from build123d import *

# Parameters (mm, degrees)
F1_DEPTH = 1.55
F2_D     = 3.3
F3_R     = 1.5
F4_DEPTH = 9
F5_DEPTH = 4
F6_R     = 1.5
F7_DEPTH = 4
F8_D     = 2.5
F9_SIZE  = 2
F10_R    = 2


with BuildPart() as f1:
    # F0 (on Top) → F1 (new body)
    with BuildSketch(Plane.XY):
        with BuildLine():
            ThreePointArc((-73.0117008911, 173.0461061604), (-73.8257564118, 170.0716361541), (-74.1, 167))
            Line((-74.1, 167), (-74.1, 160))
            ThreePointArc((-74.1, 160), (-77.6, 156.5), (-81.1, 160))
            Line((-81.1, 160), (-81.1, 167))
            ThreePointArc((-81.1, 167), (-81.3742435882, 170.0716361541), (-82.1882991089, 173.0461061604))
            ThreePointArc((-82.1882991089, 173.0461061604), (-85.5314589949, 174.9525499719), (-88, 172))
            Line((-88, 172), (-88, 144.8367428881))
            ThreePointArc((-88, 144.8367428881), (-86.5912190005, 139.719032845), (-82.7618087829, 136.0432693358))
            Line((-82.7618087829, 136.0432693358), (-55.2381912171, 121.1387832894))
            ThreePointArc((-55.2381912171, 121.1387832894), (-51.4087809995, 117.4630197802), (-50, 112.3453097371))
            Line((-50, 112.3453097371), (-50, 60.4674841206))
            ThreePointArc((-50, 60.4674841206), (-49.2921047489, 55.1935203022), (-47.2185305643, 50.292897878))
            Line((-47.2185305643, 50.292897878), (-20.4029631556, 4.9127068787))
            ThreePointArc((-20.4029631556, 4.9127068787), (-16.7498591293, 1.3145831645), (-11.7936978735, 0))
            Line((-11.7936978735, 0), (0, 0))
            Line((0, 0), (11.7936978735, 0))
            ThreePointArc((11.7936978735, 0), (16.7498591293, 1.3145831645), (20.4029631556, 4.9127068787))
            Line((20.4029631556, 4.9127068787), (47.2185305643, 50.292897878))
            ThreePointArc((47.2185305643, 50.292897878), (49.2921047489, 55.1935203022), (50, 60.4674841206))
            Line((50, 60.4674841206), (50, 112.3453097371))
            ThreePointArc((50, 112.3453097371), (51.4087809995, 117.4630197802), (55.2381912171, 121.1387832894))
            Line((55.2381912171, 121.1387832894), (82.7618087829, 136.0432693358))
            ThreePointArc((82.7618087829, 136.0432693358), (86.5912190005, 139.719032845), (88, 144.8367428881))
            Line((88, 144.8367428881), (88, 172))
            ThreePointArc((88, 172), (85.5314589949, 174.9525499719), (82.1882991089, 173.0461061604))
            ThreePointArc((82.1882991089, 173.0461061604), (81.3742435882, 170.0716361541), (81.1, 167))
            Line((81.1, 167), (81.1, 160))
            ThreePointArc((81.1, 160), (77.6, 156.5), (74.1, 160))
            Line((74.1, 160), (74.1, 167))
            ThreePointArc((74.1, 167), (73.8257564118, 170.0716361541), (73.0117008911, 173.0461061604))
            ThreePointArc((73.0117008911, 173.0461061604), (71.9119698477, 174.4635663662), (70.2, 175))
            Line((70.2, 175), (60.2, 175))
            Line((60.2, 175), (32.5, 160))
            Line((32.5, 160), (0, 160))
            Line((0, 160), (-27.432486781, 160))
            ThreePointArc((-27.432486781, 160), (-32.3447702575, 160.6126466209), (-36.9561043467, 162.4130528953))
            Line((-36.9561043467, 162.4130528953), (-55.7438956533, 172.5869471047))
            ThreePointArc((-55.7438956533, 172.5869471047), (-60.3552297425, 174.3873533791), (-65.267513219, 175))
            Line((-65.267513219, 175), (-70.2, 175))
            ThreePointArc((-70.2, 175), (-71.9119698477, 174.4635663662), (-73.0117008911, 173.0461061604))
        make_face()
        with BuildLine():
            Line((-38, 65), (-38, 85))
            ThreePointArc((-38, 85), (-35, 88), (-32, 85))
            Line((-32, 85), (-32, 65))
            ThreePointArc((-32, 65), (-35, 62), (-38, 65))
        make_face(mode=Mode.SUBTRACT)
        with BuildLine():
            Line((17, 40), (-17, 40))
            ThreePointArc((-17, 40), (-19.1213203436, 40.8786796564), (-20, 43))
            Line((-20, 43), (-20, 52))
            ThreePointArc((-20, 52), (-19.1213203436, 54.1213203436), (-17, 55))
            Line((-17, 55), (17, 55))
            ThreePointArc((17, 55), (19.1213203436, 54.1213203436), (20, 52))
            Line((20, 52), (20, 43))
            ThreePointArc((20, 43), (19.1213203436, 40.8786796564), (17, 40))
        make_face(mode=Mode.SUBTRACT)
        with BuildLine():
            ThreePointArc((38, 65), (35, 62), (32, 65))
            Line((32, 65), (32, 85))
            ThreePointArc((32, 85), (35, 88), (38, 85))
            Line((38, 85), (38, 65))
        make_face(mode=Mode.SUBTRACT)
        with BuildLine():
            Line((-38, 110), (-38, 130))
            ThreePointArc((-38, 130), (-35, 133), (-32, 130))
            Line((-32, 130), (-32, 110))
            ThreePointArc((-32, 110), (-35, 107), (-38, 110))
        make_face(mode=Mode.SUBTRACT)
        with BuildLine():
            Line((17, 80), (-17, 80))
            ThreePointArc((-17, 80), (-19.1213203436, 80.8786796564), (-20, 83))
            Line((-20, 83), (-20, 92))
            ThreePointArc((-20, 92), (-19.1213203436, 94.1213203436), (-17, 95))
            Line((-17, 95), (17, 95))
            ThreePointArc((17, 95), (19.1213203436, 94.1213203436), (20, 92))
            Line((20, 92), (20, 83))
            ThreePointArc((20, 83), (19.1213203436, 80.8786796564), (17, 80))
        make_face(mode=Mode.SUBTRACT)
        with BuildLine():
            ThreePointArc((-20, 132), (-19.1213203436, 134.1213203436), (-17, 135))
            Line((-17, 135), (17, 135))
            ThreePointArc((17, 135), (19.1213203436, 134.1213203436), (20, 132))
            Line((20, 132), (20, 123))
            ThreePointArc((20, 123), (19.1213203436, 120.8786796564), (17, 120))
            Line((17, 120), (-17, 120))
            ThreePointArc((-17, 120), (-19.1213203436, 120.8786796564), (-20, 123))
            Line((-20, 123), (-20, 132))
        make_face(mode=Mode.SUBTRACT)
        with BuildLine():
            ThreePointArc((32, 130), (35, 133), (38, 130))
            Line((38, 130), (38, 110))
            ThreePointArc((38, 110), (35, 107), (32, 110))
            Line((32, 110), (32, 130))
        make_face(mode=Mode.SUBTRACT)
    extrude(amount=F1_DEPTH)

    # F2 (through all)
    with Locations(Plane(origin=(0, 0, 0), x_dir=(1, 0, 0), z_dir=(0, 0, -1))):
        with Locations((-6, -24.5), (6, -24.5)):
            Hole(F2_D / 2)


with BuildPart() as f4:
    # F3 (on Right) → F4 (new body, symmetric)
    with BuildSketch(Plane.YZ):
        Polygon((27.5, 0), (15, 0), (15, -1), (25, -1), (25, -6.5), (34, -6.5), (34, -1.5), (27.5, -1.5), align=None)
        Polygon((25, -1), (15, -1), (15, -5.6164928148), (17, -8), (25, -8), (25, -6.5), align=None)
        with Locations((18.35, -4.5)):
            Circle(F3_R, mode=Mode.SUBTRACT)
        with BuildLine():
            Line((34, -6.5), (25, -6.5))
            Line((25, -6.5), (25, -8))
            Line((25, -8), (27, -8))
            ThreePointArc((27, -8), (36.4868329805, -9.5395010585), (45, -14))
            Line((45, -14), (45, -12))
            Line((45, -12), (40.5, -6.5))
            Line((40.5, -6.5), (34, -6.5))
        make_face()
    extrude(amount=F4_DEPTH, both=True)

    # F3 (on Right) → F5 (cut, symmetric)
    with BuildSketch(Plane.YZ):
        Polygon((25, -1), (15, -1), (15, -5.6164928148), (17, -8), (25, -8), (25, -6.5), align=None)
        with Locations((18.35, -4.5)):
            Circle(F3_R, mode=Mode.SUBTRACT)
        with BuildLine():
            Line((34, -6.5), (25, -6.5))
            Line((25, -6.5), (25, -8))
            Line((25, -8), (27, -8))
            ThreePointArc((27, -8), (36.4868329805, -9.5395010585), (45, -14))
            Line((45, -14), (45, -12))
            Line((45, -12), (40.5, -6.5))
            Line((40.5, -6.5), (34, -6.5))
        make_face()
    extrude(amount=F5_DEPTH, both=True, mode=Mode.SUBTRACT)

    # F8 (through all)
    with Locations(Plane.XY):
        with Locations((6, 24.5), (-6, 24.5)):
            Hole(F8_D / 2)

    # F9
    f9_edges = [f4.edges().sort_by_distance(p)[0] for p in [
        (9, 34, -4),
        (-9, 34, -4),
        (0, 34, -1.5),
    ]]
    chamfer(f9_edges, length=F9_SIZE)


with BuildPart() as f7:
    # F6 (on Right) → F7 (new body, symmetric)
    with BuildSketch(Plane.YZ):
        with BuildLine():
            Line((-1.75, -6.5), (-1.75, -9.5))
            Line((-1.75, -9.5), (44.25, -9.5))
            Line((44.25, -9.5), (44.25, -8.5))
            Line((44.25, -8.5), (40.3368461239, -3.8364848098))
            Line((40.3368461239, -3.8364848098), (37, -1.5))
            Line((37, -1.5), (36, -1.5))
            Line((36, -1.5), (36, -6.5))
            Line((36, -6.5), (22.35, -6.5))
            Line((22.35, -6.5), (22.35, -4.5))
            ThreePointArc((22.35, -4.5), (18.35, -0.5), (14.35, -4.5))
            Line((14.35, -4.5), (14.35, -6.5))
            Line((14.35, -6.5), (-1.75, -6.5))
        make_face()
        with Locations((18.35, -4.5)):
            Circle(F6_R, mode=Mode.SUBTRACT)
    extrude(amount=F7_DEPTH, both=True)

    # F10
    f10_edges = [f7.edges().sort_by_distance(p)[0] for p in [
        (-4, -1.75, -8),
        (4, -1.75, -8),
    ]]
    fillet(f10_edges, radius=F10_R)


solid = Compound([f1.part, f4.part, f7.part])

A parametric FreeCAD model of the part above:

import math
import FreeCAD as App
import Part
import Sketcher
from FreeCAD import Vector
Q = App.Units.Quantity


def edges_at(feature, points):
    """Names of the edges that pass closest to the given points."""
    edges = feature.Shape.Edges
    near = lambda p: min(range(len(edges)), key=lambda i: edges[i].distToShape(Part.Vertex(*p))[0])
    return sorted({f"Edge{near(p) + 1}" for p in points})

doc = App.newDocument("Part")
params = doc.addObject("Spreadsheet::Sheet", "Params")
for row, (alias, value) in enumerate([
    ("sketch1_radius", "3 mm"),
    ("sketch1_radius2", "10 mm"),
    ("sketch1_radius3", "20 mm"),
    ("sketch1_radius4", "3.5 mm"),
    ("sketch1_width", "10 mm"),
    ("pad1_length", "1.55 mm"),
    ("sketch2_diameter", "3.3 mm"),
    ("hole_diameter", "3.3 mm"),
    ("sketch3_diameter", "3 mm"),
    ("sketch3_radius", "30 mm"),
    ("sketch3_width", "10 mm"),
    ("sketch3_height", "2 mm"),
    ("sketch3_height2", "5 mm"),
    ("pad2_length", "18 mm"),
    ("sketch4_diameter", "3 mm"),
    ("sketch4_radius", "30 mm"),
    ("sketch4_width", "10 mm"),
    ("sketch4_height", "2 mm"),
    ("sketch4_width2", "15.5 mm"),
    ("pocket1_length", "8 mm"),
    ("sketch5_diameter", "2.5 mm"),
    ("hole2_diameter", "2.5 mm"),
    ("chamfer_size", "2 mm"),
    ("sketch6_diameter", "3 mm"),
    ("sketch6_radius", "4 mm"),
    ("sketch6_width", "46 mm"),
    ("sketch6_width2", "1 mm"),
    ("sketch6_height", "3 mm"),
    ("pad3_length", "8 mm"),
    ("fillet_radius", "2 mm"),
], start=1):
    params.set(f"A{row}", alias)
    params.set(f"B{row}", "=" + value)
    params.setAlias(f"B{row}", alias)

body = doc.addObject("PartDesign::Body", "Body")

# Sketch on XY plane
sketch1 = body.newObject("Sketcher::SketchObject", "Sketch")
sketch1.AttachmentSupport = (doc.getObject("XY_Plane"), [""])
sketch1.MapMode = "FlatFace"
sketch1.addGeometry([
    Part.ArcOfCircle(Part.Circle(Vector(-56.8, 167, 0), Vector(0, 0, 1), 17.3), math.radians(160), math.radians(180)),  # 0
    Part.LineSegment(Vector(-74.1, 167, 0), Vector(-74.1, 160, 0)),  # 1
    Part.ArcOfCircle(Part.Circle(Vector(-77.6, 160, 0), Vector(0, 0, 1), 3.5), math.radians(180), math.radians(360)),  # 2
    Part.LineSegment(Vector(-81.1, 160, 0), Vector(-81.1, 167, 0)),  # 3
    Part.ArcOfCircle(Part.Circle(Vector(-98.4, 167, 0), Vector(0, 0, 1), 17.3), math.radians(0), math.radians(20)),  # 4
    Part.ArcOfCircle(Part.Circle(Vector(-85, 172, 0), Vector(0, 0, 1), 3), math.radians(20), math.radians(180)),  # 5
    Part.LineSegment(Vector(-88, 172, 0), Vector(-88, 144.8, 0)),  # 6
    Part.ArcOfCircle(Part.Circle(Vector(-78, 144.8, 0), Vector(0, 0, 1), 10), math.radians(180), math.radians(242)),  # 7
    Part.LineSegment(Vector(-82.8, 136, 0), Vector(-55.2, 121.1, 0)),  # 8
    Part.ArcOfCircle(Part.Circle(Vector(-60, 112.3, 0), Vector(0, 0, 1), 10), math.radians(0), math.radians(62)),  # 9
    Part.LineSegment(Vector(-50, 112.3, 0), Vector(-50, 60.5, 0)),  # 10
    Part.ArcOfCircle(Part.Circle(Vector(-30, 60.5, 0), Vector(0, 0, 1), 20), math.radians(180), math.radians(211)),  # 11
    Part.LineSegment(Vector(-47.2, 50.3, 0), Vector(-20.4, 4.9, 0)),  # 12
    Part.ArcOfCircle(Part.Circle(Vector(-11.8, 10, 0), Vector(0, 0, 1), 10), math.radians(-149), math.radians(-90)),  # 13
    Part.LineSegment(Vector(-11.8, 0, 0), Vector(11.8, 0, 0)),  # 14
    Part.ArcOfCircle(Part.Circle(Vector(11.8, 10, 0), Vector(0, 0, 1), 10), math.radians(-90), math.radians(-31)),  # 15
    Part.LineSegment(Vector(20.4, 4.9, 0), Vector(47.2, 50.3, 0)),  # 16
    Part.ArcOfCircle(Part.Circle(Vector(30, 60.5, 0), Vector(0, 0, 1), 20), math.radians(-31), math.radians(0)),  # 17
    Part.LineSegment(Vector(50, 60.5, 0), Vector(50, 112.3, 0)),  # 18
    Part.ArcOfCircle(Part.Circle(Vector(60, 112.3, 0), Vector(0, 0, 1), 10), math.radians(118), math.radians(180)),  # 19
    Part.LineSegment(Vector(55.2, 121.1, 0), Vector(82.8, 136, 0)),  # 20
    Part.ArcOfCircle(Part.Circle(Vector(78, 144.8, 0), Vector(0, 0, 1), 10), math.radians(-62), math.radians(0)),  # 21
    Part.LineSegment(Vector(88, 144.8, 0), Vector(88, 172, 0)),  # 22
    Part.ArcOfCircle(Part.Circle(Vector(85, 172, 0), Vector(0, 0, 1), 3), math.radians(0), math.radians(160)),  # 23
    Part.ArcOfCircle(Part.Circle(Vector(98.4, 167, 0), Vector(0, 0, 1), 17.3), math.radians(160), math.radians(180)),  # 24
    Part.LineSegment(Vector(81.1, 167, 0), Vector(81.1, 160, 0)),  # 25
    Part.ArcOfCircle(Part.Circle(Vector(77.6, 160, 0), Vector(0, 0, 1), 3.5), math.radians(180), math.radians(360)),  # 26
    Part.LineSegment(Vector(74.1, 160, 0), Vector(74.1, 167, 0)),  # 27
    Part.ArcOfCircle(Part.Circle(Vector(56.8, 167, 0), Vector(0, 0, 1), 17.3), math.radians(0), math.radians(20)),  # 28
    Part.ArcOfCircle(Part.Circle(Vector(70.2, 172, 0), Vector(0, 0, 1), 3), math.radians(20), math.radians(90)),  # 29
    Part.LineSegment(Vector(70.2, 175, 0), Vector(60.2, 175, 0)),  # 30
    Part.LineSegment(Vector(60.2, 175, 0), Vector(32.5, 160, 0)),  # 31
    Part.LineSegment(Vector(32.5, 160, 0), Vector(-27.4, 160, 0)),  # 32
    Part.ArcOfCircle(Part.Circle(Vector(-27.4, 180, 0), Vector(0, 0, 1), 20), math.radians(-118), math.radians(-90)),  # 33
    Part.LineSegment(Vector(-37, 162.4, 0), Vector(-55.7, 172.6, 0)),  # 34
    Part.ArcOfCircle(Part.Circle(Vector(-65.3, 155, 0), Vector(0, 0, 1), 20), math.radians(62), math.radians(90)),  # 35
    Part.LineSegment(Vector(-65.3, 175, 0), Vector(-70.2, 175, 0)),  # 36
    Part.ArcOfCircle(Part.Circle(Vector(-70.2, 172, 0), Vector(0, 0, 1), 3), math.radians(90), math.radians(160)),  # 37
    Part.ArcOfCircle(Part.Circle(Vector(-35, 65, 0), Vector(0, 0, 1), 3), math.radians(180), math.radians(360)),  # 38
    Part.LineSegment(Vector(-38, 65, 0), Vector(-38, 85, 0)),  # 39
    Part.ArcOfCircle(Part.Circle(Vector(-35, 85, 0), Vector(0, 0, 1), 3), math.radians(0), math.radians(180)),  # 40
    Part.LineSegment(Vector(-32, 85, 0), Vector(-32, 65, 0)),  # 41
    Part.ArcOfCircle(Part.Circle(Vector(17, 43, 0), Vector(0, 0, 1), 3), math.radians(-90), math.radians(0)),  # 42
    Part.LineSegment(Vector(17, 40, 0), Vector(-17, 40, 0)),  # 43
    Part.ArcOfCircle(Part.Circle(Vector(-17, 43, 0), Vector(0, 0, 1), 3), math.radians(180), math.radians(270)),  # 44
    Part.LineSegment(Vector(-20, 43, 0), Vector(-20, 52, 0)),  # 45
    Part.ArcOfCircle(Part.Circle(Vector(-17, 52, 0), Vector(0, 0, 1), 3), math.radians(90), math.radians(180)),  # 46
    Part.LineSegment(Vector(-17, 55, 0), Vector(17, 55, 0)),  # 47
    Part.ArcOfCircle(Part.Circle(Vector(17, 52, 0), Vector(0, 0, 1), 3), math.radians(0), math.radians(90)),  # 48
    Part.LineSegment(Vector(20, 52, 0), Vector(20, 43, 0)),  # 49
    Part.LineSegment(Vector(38, 85, 0), Vector(38, 65, 0)),  # 50
    Part.ArcOfCircle(Part.Circle(Vector(35, 65, 0), Vector(0, 0, 1), 3), math.radians(180), math.radians(360)),  # 51
    Part.LineSegment(Vector(32, 65, 0), Vector(32, 85, 0)),  # 52
    Part.ArcOfCircle(Part.Circle(Vector(35, 85, 0), Vector(0, 0, 1), 3), math.radians(0), math.radians(180)),  # 53
    Part.ArcOfCircle(Part.Circle(Vector(-35, 110, 0), Vector(0, 0, 1), 3), math.radians(180), math.radians(360)),  # 54
    Part.LineSegment(Vector(-38, 110, 0), Vector(-38, 130, 0)),  # 55
    Part.ArcOfCircle(Part.Circle(Vector(-35, 130, 0), Vector(0, 0, 1), 3), math.radians(0), math.radians(180)),  # 56
    Part.LineSegment(Vector(-32, 130, 0), Vector(-32, 110, 0)),  # 57
    Part.ArcOfCircle(Part.Circle(Vector(17, 83, 0), Vector(0, 0, 1), 3), math.radians(-90), math.radians(0)),  # 58
    Part.LineSegment(Vector(17, 80, 0), Vector(-17, 80, 0)),  # 59
    Part.ArcOfCircle(Part.Circle(Vector(-17, 83, 0), Vector(0, 0, 1), 3), math.radians(180), math.radians(270)),  # 60
    Part.LineSegment(Vector(-20, 83, 0), Vector(-20, 92, 0)),  # 61
    Part.ArcOfCircle(Part.Circle(Vector(-17, 92, 0), Vector(0, 0, 1), 3), math.radians(90), math.radians(180)),  # 62
    Part.LineSegment(Vector(-17, 95, 0), Vector(17, 95, 0)),  # 63
    Part.ArcOfCircle(Part.Circle(Vector(17, 92, 0), Vector(0, 0, 1), 3), math.radians(0), math.radians(90)),  # 64
    Part.LineSegment(Vector(20, 92, 0), Vector(20, 83, 0)),  # 65
    Part.LineSegment(Vector(-20, 123, 0), Vector(-20, 132, 0)),  # 66
    Part.ArcOfCircle(Part.Circle(Vector(-17, 132, 0), Vector(0, 0, 1), 3), math.radians(90), math.radians(180)),  # 67
    Part.LineSegment(Vector(-17, 135, 0), Vector(17, 135, 0)),  # 68
    Part.ArcOfCircle(Part.Circle(Vector(17, 132, 0), Vector(0, 0, 1), 3), math.radians(0), math.radians(90)),  # 69
    Part.LineSegment(Vector(20, 132, 0), Vector(20, 123, 0)),  # 70
    Part.ArcOfCircle(Part.Circle(Vector(17, 123, 0), Vector(0, 0, 1), 3), math.radians(-90), math.radians(0)),  # 71
    Part.LineSegment(Vector(17, 120, 0), Vector(-17, 120, 0)),  # 72
    Part.ArcOfCircle(Part.Circle(Vector(-17, 123, 0), Vector(0, 0, 1), 3), math.radians(180), math.radians(270)),  # 73
    Part.LineSegment(Vector(32, 110, 0), Vector(32, 130, 0)),  # 74
    Part.ArcOfCircle(Part.Circle(Vector(35, 130, 0), Vector(0, 0, 1), 3), math.radians(0), math.radians(180)),  # 75
    Part.LineSegment(Vector(38, 130, 0), Vector(38, 110, 0)),  # 76
    Part.ArcOfCircle(Part.Circle(Vector(35, 110, 0), Vector(0, 0, 1), 3), math.radians(180), math.radians(360)),  # 77
], False)
sketch1.addConstraint([
    Sketcher.Constraint("Tangent", 0, 2, 1, 1),
    Sketcher.Constraint("Tangent", 1, 2, 2, 2),
    Sketcher.Constraint("Tangent", 2, 1, 3, 1),
    Sketcher.Constraint("Tangent", 3, 2, 4, 1),
    Sketcher.Constraint("Tangent", 4, 2, 5, 1),
    Sketcher.Constraint("Tangent", 5, 2, 6, 1),
    Sketcher.Constraint("Tangent", 6, 2, 7, 1),
    Sketcher.Constraint("Tangent", 7, 2, 8, 1),
    Sketcher.Constraint("Tangent", 8, 2, 9, 2),
    Sketcher.Constraint("Tangent", 9, 1, 10, 1),
    Sketcher.Constraint("Tangent", 10, 2, 11, 1),
    Sketcher.Constraint("Tangent", 11, 2, 12, 1),
    Sketcher.Constraint("Tangent", 12, 2, 13, 1),
    Sketcher.Constraint("Tangent", 13, 2, 14, 1),
    Sketcher.Constraint("Tangent", 14, 2, 15, 1),
    Sketcher.Constraint("Tangent", 15, 2, 16, 1),
    Sketcher.Constraint("Tangent", 16, 2, 17, 1),
    Sketcher.Constraint("Tangent", 17, 2, 18, 1),
    Sketcher.Constraint("Tangent", 18, 2, 19, 2),
    Sketcher.Constraint("Tangent", 19, 1, 20, 1),
    Sketcher.Constraint("Tangent", 20, 2, 21, 1),
    Sketcher.Constraint("Tangent", 21, 2, 22, 1),
    Sketcher.Constraint("Tangent", 22, 2, 23, 1),
    Sketcher.Constraint("Tangent", 23, 2, 24, 1),
    Sketcher.Constraint("Tangent", 24, 2, 25, 1),
    Sketcher.Constraint("Tangent", 25, 2, 26, 2),
    Sketcher.Constraint("Tangent", 26, 1, 27, 1),
    Sketcher.Constraint("Tangent", 27, 2, 28, 1),
    Sketcher.Constraint("Tangent", 28, 2, 29, 1),
    Sketcher.Constraint("Tangent", 29, 2, 30, 1),
    Sketcher.Constraint("Coincident", 30, 2, 31, 1),
    Sketcher.Constraint("Coincident", 31, 2, 32, 1),
    Sketcher.Constraint("Tangent", 32, 2, 33, 2),
    Sketcher.Constraint("Tangent", 33, 1, 34, 1),
    Sketcher.Constraint("Tangent", 34, 2, 35, 1),
    Sketcher.Constraint("Tangent", 35, 2, 36, 1),
    Sketcher.Constraint("Tangent", 36, 2, 37, 1),
    Sketcher.Constraint("Tangent", 37, 2, 0, 1),
    Sketcher.Constraint("Tangent", 38, 1, 39, 1),
    Sketcher.Constraint("Tangent", 39, 2, 40, 2),
    Sketcher.Constraint("Tangent", 40, 1, 41, 1),
    Sketcher.Constraint("Tangent", 41, 2, 38, 2),
    Sketcher.Constraint("Tangent", 42, 1, 43, 1),
    Sketcher.Constraint("Tangent", 43, 2, 44, 2),
    Sketcher.Constraint("Tangent", 44, 1, 45, 1),
    Sketcher.Constraint("Tangent", 45, 2, 46, 2),
    Sketcher.Constraint("Tangent", 46, 1, 47, 1),
    Sketcher.Constraint("Tangent", 47, 2, 48, 2),
    Sketcher.Constraint("Tangent", 48, 1, 49, 1),
    Sketcher.Constraint("Tangent", 49, 2, 42, 2),
    Sketcher.Constraint("Tangent", 50, 2, 51, 2),
    Sketcher.Constraint("Tangent", 51, 1, 52, 1),
    Sketcher.Constraint("Tangent", 52, 2, 53, 2),
    Sketcher.Constraint("Tangent", 53, 1, 50, 1),
    Sketcher.Constraint("Tangent", 54, 1, 55, 1),
    Sketcher.Constraint("Tangent", 55, 2, 56, 2),
    Sketcher.Constraint("Tangent", 56, 1, 57, 1),
    Sketcher.Constraint("Tangent", 57, 2, 54, 2),
    Sketcher.Constraint("Tangent", 58, 1, 59, 1),
    Sketcher.Constraint("Tangent", 59, 2, 60, 2),
    Sketcher.Constraint("Tangent", 60, 1, 61, 1),
    Sketcher.Constraint("Tangent", 61, 2, 62, 2),
    Sketcher.Constraint("Tangent", 62, 1, 63, 1),
    Sketcher.Constraint("Tangent", 63, 2, 64, 2),
    Sketcher.Constraint("Tangent", 64, 1, 65, 1),
    Sketcher.Constraint("Tangent", 65, 2, 58, 2),
    Sketcher.Constraint("Tangent", 66, 2, 67, 2),
    Sketcher.Constraint("Tangent", 67, 1, 68, 1),
    Sketcher.Constraint("Tangent", 68, 2, 69, 2),
    Sketcher.Constraint("Tangent", 69, 1, 70, 1),
    Sketcher.Constraint("Tangent", 70, 2, 71, 2),
    Sketcher.Constraint("Tangent", 71, 1, 72, 1),
    Sketcher.Constraint("Tangent", 72, 2, 73, 2),
    Sketcher.Constraint("Tangent", 73, 1, 66, 1),
    Sketcher.Constraint("Tangent", 74, 2, 75, 2),
    Sketcher.Constraint("Tangent", 75, 1, 76, 1),
    Sketcher.Constraint("Tangent", 76, 2, 77, 2),
    Sketcher.Constraint("Tangent", 77, 1, 74, 1),
    Sketcher.Constraint("Vertical", 1),
    Sketcher.Constraint("Vertical", 3),
    Sketcher.Constraint("Vertical", 6),
    Sketcher.Constraint("Vertical", 10),
    Sketcher.Constraint("Horizontal", 14),
    Sketcher.Constraint("Vertical", 18),
    Sketcher.Constraint("Vertical", 22),
    Sketcher.Constraint("Vertical", 25),
    Sketcher.Constraint("Vertical", 27),
    Sketcher.Constraint("Horizontal", 30),
    Sketcher.Constraint("Horizontal", 32),
    Sketcher.Constraint("Horizontal", 36),
    Sketcher.Constraint("Vertical", 39),
    Sketcher.Constraint("Vertical", 41),
    Sketcher.Constraint("Horizontal", 43),
    Sketcher.Constraint("Vertical", 45),
    Sketcher.Constraint("Horizontal", 47),
    Sketcher.Constraint("Vertical", 49),
    Sketcher.Constraint("Vertical", 50),
    Sketcher.Constraint("Vertical", 52),
    Sketcher.Constraint("Vertical", 55),
    Sketcher.Constraint("Vertical", 57),
    Sketcher.Constraint("Horizontal", 59),
    Sketcher.Constraint("Vertical", 61),
    Sketcher.Constraint("Horizontal", 63),
    Sketcher.Constraint("Vertical", 65),
    Sketcher.Constraint("Vertical", 66),
    Sketcher.Constraint("Horizontal", 68),
    Sketcher.Constraint("Vertical", 70),
    Sketcher.Constraint("Horizontal", 72),
    Sketcher.Constraint("Vertical", 74),
    Sketcher.Constraint("Vertical", 76),
    Sketcher.Constraint("Equal", 0, 4),
    Sketcher.Constraint("Equal", 7, 9),
    Sketcher.Constraint("Equal", 9, 13),
    Sketcher.Constraint("Equal", 13, 15),
    Sketcher.Constraint("Equal", 11, 17),
    Sketcher.Constraint("Equal", 15, 19),
    Sketcher.Constraint("Equal", 19, 21),
    Sketcher.Constraint("Equal", 5, 23),
    Sketcher.Constraint("Equal", 4, 24),
    Sketcher.Constraint("Equal", 2, 26),
    Sketcher.Constraint("Equal", 24, 28),
    Sketcher.Constraint("Equal", 23, 29),
    Sketcher.Constraint("Equal", 17, 33),
    Sketcher.Constraint("Equal", 33, 35),
    Sketcher.Constraint("Equal", 29, 37),
    Sketcher.Constraint("Equal", 37, 38),
    Sketcher.Constraint("Equal", 40, 42),
    Sketcher.Constraint("Equal", 42, 44),
    Sketcher.Constraint("Equal", 44, 46),
    Sketcher.Constraint("Equal", 46, 48),
    Sketcher.Constraint("Equal", 48, 51),
    Sketcher.Constraint("Equal", 53, 54),
    Sketcher.Constraint("Equal", 56, 58),
    Sketcher.Constraint("Equal", 58, 60),
    Sketcher.Constraint("Equal", 60, 62),
    Sketcher.Constraint("Equal", 62, 64),
    Sketcher.Constraint("Equal", 64, 67),
    Sketcher.Constraint("Equal", 67, 69),
    Sketcher.Constraint("Equal", 69, 71),
    Sketcher.Constraint("Equal", 71, 73),
    Sketcher.Constraint("Equal", 73, 75),
    Sketcher.Constraint("Symmetric", 13, 2, 14, 2, -1, 1),
    Sketcher.Constraint("Symmetric", 11, 3, 17, 3, -2),
    Sketcher.Constraint("Symmetric", 7, 3, 21, 3, -2),
    Sketcher.Constraint("Symmetric", 4, 3, 24, 3, -2),
    Sketcher.Constraint("Symmetric", 29, 3, 37, 3, -2),
    Sketcher.Constraint("Symmetric", 38, 3, 51, 3, -2),
    Sketcher.Constraint("Symmetric", 56, 3, 75, 3, -2),
    Sketcher.Constraint("Parallel", 20, 31),
    Sketcher.Constraint("Parallel", 8, 34),
    Sketcher.Constraint("Horizontal", 0, 3, 4, 3),
    Sketcher.Constraint("Horizontal", 9, 3, 19, 3),
    Sketcher.Constraint("Horizontal", 2, 3, 26, 3),
    Sketcher.Constraint("Horizontal", 23, 3, 29, 3),
    Sketcher.Constraint("Horizontal", 40, 3, 53, 3),
    Sketcher.Constraint("Horizontal", 54, 3, 77, 3),
    Sketcher.Constraint("Horizontal", 26, 1, 31, 2),
    Sketcher.Constraint("Vertical", 40, 3, 54, 3),
    Sketcher.Constraint("Vertical", 48, 3, 58, 3),
    Sketcher.Constraint("Vertical", 46, 3, 60, 3),
    Sketcher.Constraint("Vertical", 62, 3, 67, 3),
    Sketcher.Constraint("Vertical", 64, 3, 69, 3),
    Sketcher.Constraint("Equal", 52, 55),
    Sketcher.Constraint("Equal", 49, 61),
    Sketcher.Constraint("Equal", 65, 66),
    Sketcher.Constraint("Radius", 5, Q("3 mm")),
    Sketcher.Constraint("Radius", 7, Q("10 mm")),
    Sketcher.Constraint("Radius", 11, Q("20 mm")),
    Sketcher.Constraint("Radius", 2, Q("3.5 mm")),
    Sketcher.Constraint("DistanceX", 30, 2, 30, 1, Q("10 mm")),
    Sketcher.Constraint("DistanceX", 43, 2, 43, 1, Q("34 mm")),
    Sketcher.Constraint("DistanceY", 1, 2, 1, 1, Q("7 mm")),
    Sketcher.Constraint("DistanceY", 39, 1, 39, 2, Q("20 mm")),
    Sketcher.Constraint("DistanceY", 45, 1, 45, 2, Q("9 mm")),
    Sketcher.Constraint("DistanceY", -1, 1, 0, 3, Q("167 mm")),
    Sketcher.Constraint("DistanceX", 5, 3, -1, 1, Q("85 mm")),
    Sketcher.Constraint("DistanceY", -1, 1, 5, 3, Q("172 mm")),
    Sketcher.Constraint("DistanceX", 9, 3, -1, 1, Q("60 mm")),
    Sketcher.Constraint("DistanceX", 38, 3, -1, 1, Q("35 mm")),
    Sketcher.Constraint("DistanceY", -1, 1, 38, 3, Q("65 mm")),
    Sketcher.Constraint("DistanceX", -1, 1, 42, 3, Q("17 mm")),
    Sketcher.Constraint("DistanceY", -1, 1, 42, 3, Q("43 mm")),
    Sketcher.Constraint("DistanceY", -1, 1, 54, 3, Q("110 mm")),
    Sketcher.Constraint("DistanceY", -1, 1, 58, 3, Q("83 mm")),
    Sketcher.Constraint("DistanceY", -1, 1, 67, 3, Q("132 mm")),
    Sketcher.Constraint("DistanceX", 2, 3, -1, 1, Q("77.6 mm")),
    Sketcher.Constraint("DistanceX", -1, 1, 31, 2, Q("32.5 mm")),
    Sketcher.Constraint("DistanceX", 14, 1, 14, 2, Q("23.587396 mm")),
    Sketcher.Constraint("DistanceX", 32, 2, 32, 1, Q("59.932487 mm")),
    Sketcher.Constraint("DistanceY", 6, 2, 6, 1, Q("27.163257 mm")),
    Sketcher.Constraint("DistanceY", 10, 2, 10, 1, Q("51.877826 mm")),
])
sketch1.setExpression("Constraints[165]", "Params.sketch1_radius")
sketch1.setExpression("Constraints[166]", "Params.sketch1_radius2")
sketch1.setExpression("Constraints[167]", "Params.sketch1_radius3")
sketch1.setExpression("Constraints[168]", "Params.sketch1_radius4")
sketch1.setExpression("Constraints[169]", "Params.sketch1_width")
pad1 = body.newObject("PartDesign::Pad", "Pad")
pad1.Profile = sketch1
pad1.setExpression("Length", "Params.pad1_length")

# Sketch on XY plane
sketch2 = body.newObject("Sketcher::SketchObject", "Sketch001")
sketch2.AttachmentSupport = (doc.getObject("XY_Plane"), [""])
sketch2.MapMode = "FlatFace"
sketch2.addGeometry([
    Part.Circle(Vector(-6, 24.5, 0), Vector(0, 0, 1), 1.6),
    Part.Circle(Vector(6, 24.5, 0), Vector(0, 0, 1), 1.6),
], False)
sketch2.addConstraint([
    Sketcher.Constraint("Equal", 0, 1),
    Sketcher.Constraint("Symmetric", 0, 3, 1, 3, -2),
    Sketcher.Constraint("Diameter", 0, Q("3.3 mm")),
    Sketcher.Constraint("DistanceX", 0, 3, -1, 1, Q("6 mm")),
    Sketcher.Constraint("DistanceY", -1, 1, 0, 3, Q("24.5 mm")),
])
sketch2.setExpression("Constraints[2]", "Params.sketch2_diameter")
doc.recompute()
hole = body.newObject("PartDesign::Hole", "Hole")
hole.Profile = sketch2
hole.ThreadType = "None"
hole.setExpression("Diameter", "Params.hole_diameter")
hole.DepthType = "ThroughAll"
hole.Reversed = True
body2 = doc.addObject("PartDesign::Body", "Body001")

# Sketch on YZ plane
sketch3 = body2.newObject("Sketcher::SketchObject", "Sketch002")
sketch3.AttachmentSupport = (doc.getObject("YZ_Plane001"), [""])
sketch3.MapMode = "FlatFace"
sketch3.addGeometry([
    Part.LineSegment(Vector(27.5, 0, 0), Vector(15, 0, 0)),  # 0
    Part.LineSegment(Vector(15, 0, 0), Vector(15, -5.6, 0)),  # 1
    Part.LineSegment(Vector(15, -5.6, 0), Vector(17, -8, 0)),  # 2
    Part.LineSegment(Vector(17, -8, 0), Vector(27, -8, 0)),  # 3
    Part.ArcOfCircle(Part.Circle(Vector(27, -38, 0), Vector(0, 0, 1), 30), math.radians(53), math.radians(90)),  # 4
    Part.LineSegment(Vector(45, -14, 0), Vector(45, -12, 0)),  # 5
    Part.LineSegment(Vector(45, -12, 0), Vector(40.5, -6.5, 0)),  # 6
    Part.LineSegment(Vector(40.5, -6.5, 0), Vector(34, -6.5, 0)),  # 7
    Part.LineSegment(Vector(34, -6.5, 0), Vector(34, -1.5, 0)),  # 8
    Part.LineSegment(Vector(34, -1.5, 0), Vector(27.5, -1.5, 0)),  # 9
    Part.LineSegment(Vector(27.5, -1.5, 0), Vector(27.5, 0, 0)),  # 10
    Part.Circle(Vector(18.4, -4.5, 0), Vector(0, 0, 1), 1.5),  # 11
], False)
sketch3.addConstraint([
    Sketcher.Constraint("Coincident", 0, 2, 1, 1),
    Sketcher.Constraint("Coincident", 1, 2, 2, 1),
    Sketcher.Constraint("Coincident", 2, 2, 3, 1),
    Sketcher.Constraint("Tangent", 3, 2, 4, 2),
    Sketcher.Constraint("Coincident", 4, 1, 5, 1),
    Sketcher.Constraint("Coincident", 5, 2, 6, 1),
    Sketcher.Constraint("Coincident", 6, 2, 7, 1),
    Sketcher.Constraint("Coincident", 7, 2, 8, 1),
    Sketcher.Constraint("Coincident", 8, 2, 9, 1),
    Sketcher.Constraint("Coincident", 9, 2, 10, 1),
    Sketcher.Constraint("Coincident", 10, 2, 0, 1),
    Sketcher.Constraint("Horizontal", 0),
    Sketcher.Constraint("Vertical", 1),
    Sketcher.Constraint("Horizontal", 3),
    Sketcher.Constraint("Vertical", 5),
    Sketcher.Constraint("Horizontal", 7),
    Sketcher.Constraint("Vertical", 8),
    Sketcher.Constraint("Horizontal", 9),
    Sketcher.Constraint("Vertical", 10),
    Sketcher.Constraint("PointOnObject", 0, 2, -1),
    Sketcher.Constraint("Equal", 7, 9),
    Sketcher.Constraint("Diameter", 11, Q("3 mm")),
    Sketcher.Constraint("Radius", 4, Q("30 mm")),
    Sketcher.Constraint("DistanceX", 3, 1, 3, 2, Q("10 mm")),
    Sketcher.Constraint("DistanceY", 5, 1, 5, 2, Q("2 mm")),
    Sketcher.Constraint("DistanceY", 8, 1, 8, 2, Q("5 mm")),
    Sketcher.Constraint("Angle", 2, Q("-50 deg")),
    Sketcher.Constraint("DistanceX", 0, 2, 0, 1, Q("12.5 mm")),
    Sketcher.Constraint("DistanceX", 7, 2, 7, 1, Q("6.5 mm")),
    Sketcher.Constraint("DistanceY", 10, 1, 10, 2, Q("1.5 mm")),
    Sketcher.Constraint("DistanceX", -1, 1, 4, 3, Q("27 mm")),
    Sketcher.Constraint("DistanceY", 4, 3, -1, 1, Q("38 mm")),
    Sketcher.Constraint("DistanceX", -1, 1, 0, 2, Q("15 mm")),
    Sketcher.Constraint("DistanceX", -1, 1, 4, 1, Q("45 mm")),
    Sketcher.Constraint("DistanceY", 6, 2, 11, 3, Q("2 mm")),
    Sketcher.Constraint("DistanceX", -1, 1, 11, 3, Q("18.35 mm")),
])
sketch3.setExpression("Constraints[21]", "Params.sketch3_diameter")
sketch3.setExpression("Constraints[22]", "Params.sketch3_radius")
sketch3.setExpression("Constraints[23]", "Params.sketch3_width")
sketch3.setExpression("Constraints[24]", "Params.sketch3_height")
sketch3.setExpression("Constraints[25]", "Params.sketch3_height2")
pad2 = body2.newObject("PartDesign::Pad", "Pad001")
pad2.Profile = sketch3
pad2.setExpression("Length", "Params.pad2_length")
pad2.Midplane = True

# Sketch on YZ plane
sketch4 = body2.newObject("Sketcher::SketchObject", "Sketch003")
sketch4.AttachmentSupport = (doc.getObject("YZ_Plane001"), [""])
sketch4.MapMode = "FlatFace"
sketch4.addGeometry([
    Part.LineSegment(Vector(25, -1, 0), Vector(15, -1, 0)),  # 0
    Part.LineSegment(Vector(15, -1, 0), Vector(15, -5.6, 0)),  # 1
    Part.LineSegment(Vector(15, -5.6, 0), Vector(17, -8, 0)),  # 2
    Part.LineSegment(Vector(17, -8, 0), Vector(27, -8, 0)),  # 3
    Part.ArcOfCircle(Part.Circle(Vector(27, -38, 0), Vector(0, 0, 1), 30), math.radians(53), math.radians(90)),  # 4
    Part.LineSegment(Vector(45, -14, 0), Vector(45, -12, 0)),  # 5
    Part.LineSegment(Vector(45, -12, 0), Vector(40.5, -6.5, 0)),  # 6
    Part.LineSegment(Vector(40.5, -6.5, 0), Vector(25, -6.5, 0)),  # 7
    Part.LineSegment(Vector(25, -6.5, 0), Vector(25, -1, 0)),  # 8
    Part.Circle(Vector(18.4, -4.5, 0), Vector(0, 0, 1), 1.5),  # 9
], False)
sketch4.addConstraint([
    Sketcher.Constraint("Coincident", 0, 2, 1, 1),
    Sketcher.Constraint("Coincident", 1, 2, 2, 1),
    Sketcher.Constraint("Coincident", 2, 2, 3, 1),
    Sketcher.Constraint("Tangent", 3, 2, 4, 2),
    Sketcher.Constraint("Coincident", 4, 1, 5, 1),
    Sketcher.Constraint("Coincident", 5, 2, 6, 1),
    Sketcher.Constraint("Coincident", 6, 2, 7, 1),
    Sketcher.Constraint("Coincident", 7, 2, 8, 1),
    Sketcher.Constraint("Coincident", 8, 2, 0, 1),
    Sketcher.Constraint("Horizontal", 0),
    Sketcher.Constraint("Vertical", 1),
    Sketcher.Constraint("Horizontal", 3),
    Sketcher.Constraint("Vertical", 5),
    Sketcher.Constraint("Horizontal", 7),
    Sketcher.Constraint("Vertical", 8),
    Sketcher.Constraint("Equal", 0, 3),
    Sketcher.Constraint("Diameter", 9, Q("3 mm")),
    Sketcher.Constraint("Radius", 4, Q("30 mm")),
    Sketcher.Constraint("DistanceX", 0, 2, 0, 1, Q("10 mm")),
    Sketcher.Constraint("DistanceY", 5, 1, 5, 2, Q("2 mm")),
    Sketcher.Constraint("Angle", 2, Q("-50 deg")),
    Sketcher.Constraint("DistanceX", 7, 2, 7, 1, Q("15.5 mm")),
    Sketcher.Constraint("DistanceY", 8, 1, 8, 2, Q("5.5 mm")),
    Sketcher.Constraint("DistanceX", -1, 1, 4, 3, Q("27 mm")),
    Sketcher.Constraint("DistanceY", 4, 3, -1, 1, Q("38 mm")),
    Sketcher.Constraint("DistanceX", -1, 1, 0, 2, Q("15 mm")),
    Sketcher.Constraint("DistanceY", 0, 2, -1, 1, Q("1 mm")),
    Sketcher.Constraint("DistanceX", -1, 1, 4, 1, Q("45 mm")),
    Sketcher.Constraint("DistanceY", 6, 2, 9, 3, Q("2 mm")),
    Sketcher.Constraint("DistanceX", -1, 1, 9, 3, Q("18.35 mm")),
])
sketch4.setExpression("Constraints[16]", "Params.sketch4_diameter")
sketch4.setExpression("Constraints[17]", "Params.sketch4_radius")
sketch4.setExpression("Constraints[18]", "Params.sketch4_width")
sketch4.setExpression("Constraints[19]", "Params.sketch4_height")
sketch4.setExpression("Constraints[21]", "Params.sketch4_width2")
pocket1 = body2.newObject("PartDesign::Pocket", "Pocket")
pocket1.Profile = sketch4
pocket1.setExpression("Length", "Params.pocket1_length")
pocket1.Midplane = True

# Sketch on XY plane
sketch5 = body2.newObject("Sketcher::SketchObject", "Sketch004")
sketch5.AttachmentSupport = (doc.getObject("XY_Plane001"), [""])
sketch5.MapMode = "FlatFace"
sketch5.addGeometry([
    Part.Circle(Vector(6, 24.5, 0), Vector(0, 0, 1), 1.2),
    Part.Circle(Vector(-6, 24.5, 0), Vector(0, 0, 1), 1.2),
], False)
sketch5.addConstraint([
    Sketcher.Constraint("Equal", 0, 1),
    Sketcher.Constraint("Symmetric", 0, 3, 1, 3, -2),
    Sketcher.Constraint("Diameter", 0, Q("2.5 mm")),
    Sketcher.Constraint("DistanceX", -1, 1, 0, 3, Q("6 mm")),
    Sketcher.Constraint("DistanceY", -1, 1, 0, 3, Q("24.5 mm")),
])
sketch5.setExpression("Constraints[2]", "Params.sketch5_diameter")
doc.recompute()
hole2 = body2.newObject("PartDesign::Hole", "Hole001")
hole2.Profile = sketch5
hole2.ThreadType = "None"
hole2.setExpression("Diameter", "Params.hole2_diameter")
hole2.DepthType = "ThroughAll"
doc.recompute()

chamfer = body2.newObject("PartDesign::Chamfer", "Chamfer")
chamfer.Base = (hole2, edges_at(hole2, [(9, 34, -4), (-9, 34, -4), (0, 34, -1.5)]))
chamfer.setExpression("Size", "Params.chamfer_size")
body3 = doc.addObject("PartDesign::Body", "Body002")

# Sketch on YZ plane
sketch6 = body3.newObject("Sketcher::SketchObject", "Sketch005")
sketch6.AttachmentSupport = (doc.getObject("YZ_Plane002"), [""])
sketch6.MapMode = "FlatFace"
sketch6.addGeometry([
    Part.LineSegment(Vector(-1.8, -6.5, 0), Vector(-1.8, -9.5, 0)),  # 0
    Part.LineSegment(Vector(-1.8, -9.5, 0), Vector(44.2, -9.5, 0)),  # 1
    Part.LineSegment(Vector(44.2, -9.5, 0), Vector(44.2, -8.5, 0)),  # 2
    Part.LineSegment(Vector(44.2, -8.5, 0), Vector(40.3, -3.8, 0)),  # 3
    Part.LineSegment(Vector(40.3, -3.8, 0), Vector(37, -1.5, 0)),  # 4
    Part.LineSegment(Vector(37, -1.5, 0), Vector(36, -1.5, 0)),  # 5
    Part.LineSegment(Vector(36, -1.5, 0), Vector(36, -6.5, 0)),  # 6
    Part.LineSegment(Vector(36, -6.5, 0), Vector(22.4, -6.5, 0)),  # 7
    Part.LineSegment(Vector(22.4, -6.5, 0), Vector(22.4, -4.5, 0)),  # 8
    Part.ArcOfCircle(Part.Circle(Vector(18.4, -4.5, 0), Vector(0, 0, 1), 4), math.radians(0), math.radians(180)),  # 9
    Part.LineSegment(Vector(14.3, -4.5, 0), Vector(14.3, -6.5, 0)),  # 10
    Part.LineSegment(Vector(14.3, -6.5, 0), Vector(-1.8, -6.5, 0)),  # 11
    Part.Circle(Vector(18.4, -4.5, 0), Vector(0, 0, 1), 1.5),  # 12
], False)
sketch6.addConstraint([
    Sketcher.Constraint("Coincident", 0, 2, 1, 1),
    Sketcher.Constraint("Coincident", 1, 2, 2, 1),
    Sketcher.Constraint("Coincident", 2, 2, 3, 1),
    Sketcher.Constraint("Coincident", 3, 2, 4, 1),
    Sketcher.Constraint("Coincident", 4, 2, 5, 1),
    Sketcher.Constraint("Coincident", 5, 2, 6, 1),
    Sketcher.Constraint("Coincident", 6, 2, 7, 1),
    Sketcher.Constraint("Coincident", 7, 2, 8, 1),
    Sketcher.Constraint("Tangent", 8, 2, 9, 1),
    Sketcher.Constraint("Tangent", 9, 2, 10, 1),
    Sketcher.Constraint("Coincident", 10, 2, 11, 1),
    Sketcher.Constraint("Coincident", 11, 2, 0, 1),
    Sketcher.Constraint("Vertical", 0),
    Sketcher.Constraint("Horizontal", 1),
    Sketcher.Constraint("Vertical", 2),
    Sketcher.Constraint("Horizontal", 5),
    Sketcher.Constraint("Vertical", 6),
    Sketcher.Constraint("Horizontal", 7),
    Sketcher.Constraint("Vertical", 8),
    Sketcher.Constraint("Vertical", 10),
    Sketcher.Constraint("Horizontal", 11),
    Sketcher.Constraint("Coincident", 12, 3, 9, 3),
    Sketcher.Constraint("Horizontal", 7, 2, 10, 2),
    Sketcher.Constraint("Equal", 5, 2),
    Sketcher.Constraint("Diameter", 12, Q("3 mm")),
    Sketcher.Constraint("Radius", 9, Q("4 mm")),
    Sketcher.Constraint("DistanceX", 1, 1, 1, 2, Q("46 mm")),
    Sketcher.Constraint("DistanceX", 5, 2, 5, 1, Q("1 mm")),
    Sketcher.Constraint("DistanceY", 0, 2, 0, 1, Q("3 mm")),
    Sketcher.Constraint("DistanceY", 6, 2, 6, 1, Q("5 mm")),
    Sketcher.Constraint("DistanceY", 8, 1, 8, 2, Q("2 mm")),
    Sketcher.Constraint("Angle", 3, Q("130 deg")),
    Sketcher.Constraint("Angle", 4, Q("145 deg")),
    Sketcher.Constraint("DistanceX", 11, 2, 11, 1, Q("16.1 mm")),
    Sketcher.Constraint("DistanceX", -1, 1, 4, 2, Q("37 mm")),
    Sketcher.Constraint("DistanceX", 7, 2, 7, 1, Q("13.65 mm")),
    Sketcher.Constraint("DistanceY", 9, 3, -1, 1, Q("4.5 mm")),
])
sketch6.setExpression("Constraints[24]", "Params.sketch6_diameter")
sketch6.setExpression("Constraints[25]", "Params.sketch6_radius")
sketch6.setExpression("Constraints[26]", "Params.sketch6_width")
sketch6.setExpression("Constraints[27]", "Params.sketch6_width2")
sketch6.setExpression("Constraints[28]", "Params.sketch6_height")
pad3 = body3.newObject("PartDesign::Pad", "Pad002")
pad3.Profile = sketch6
pad3.setExpression("Length", "Params.pad3_length")
pad3.Midplane = True
doc.recompute()

fillet = body3.newObject("PartDesign::Fillet", "Fillet")
fillet.Base = (pad3, edges_at(pad3, [(-4, -1.75, -8), (4, -1.75, -8)]))
fillet.setExpression("Radius", "Params.fillet_radius")

doc.recompute()
